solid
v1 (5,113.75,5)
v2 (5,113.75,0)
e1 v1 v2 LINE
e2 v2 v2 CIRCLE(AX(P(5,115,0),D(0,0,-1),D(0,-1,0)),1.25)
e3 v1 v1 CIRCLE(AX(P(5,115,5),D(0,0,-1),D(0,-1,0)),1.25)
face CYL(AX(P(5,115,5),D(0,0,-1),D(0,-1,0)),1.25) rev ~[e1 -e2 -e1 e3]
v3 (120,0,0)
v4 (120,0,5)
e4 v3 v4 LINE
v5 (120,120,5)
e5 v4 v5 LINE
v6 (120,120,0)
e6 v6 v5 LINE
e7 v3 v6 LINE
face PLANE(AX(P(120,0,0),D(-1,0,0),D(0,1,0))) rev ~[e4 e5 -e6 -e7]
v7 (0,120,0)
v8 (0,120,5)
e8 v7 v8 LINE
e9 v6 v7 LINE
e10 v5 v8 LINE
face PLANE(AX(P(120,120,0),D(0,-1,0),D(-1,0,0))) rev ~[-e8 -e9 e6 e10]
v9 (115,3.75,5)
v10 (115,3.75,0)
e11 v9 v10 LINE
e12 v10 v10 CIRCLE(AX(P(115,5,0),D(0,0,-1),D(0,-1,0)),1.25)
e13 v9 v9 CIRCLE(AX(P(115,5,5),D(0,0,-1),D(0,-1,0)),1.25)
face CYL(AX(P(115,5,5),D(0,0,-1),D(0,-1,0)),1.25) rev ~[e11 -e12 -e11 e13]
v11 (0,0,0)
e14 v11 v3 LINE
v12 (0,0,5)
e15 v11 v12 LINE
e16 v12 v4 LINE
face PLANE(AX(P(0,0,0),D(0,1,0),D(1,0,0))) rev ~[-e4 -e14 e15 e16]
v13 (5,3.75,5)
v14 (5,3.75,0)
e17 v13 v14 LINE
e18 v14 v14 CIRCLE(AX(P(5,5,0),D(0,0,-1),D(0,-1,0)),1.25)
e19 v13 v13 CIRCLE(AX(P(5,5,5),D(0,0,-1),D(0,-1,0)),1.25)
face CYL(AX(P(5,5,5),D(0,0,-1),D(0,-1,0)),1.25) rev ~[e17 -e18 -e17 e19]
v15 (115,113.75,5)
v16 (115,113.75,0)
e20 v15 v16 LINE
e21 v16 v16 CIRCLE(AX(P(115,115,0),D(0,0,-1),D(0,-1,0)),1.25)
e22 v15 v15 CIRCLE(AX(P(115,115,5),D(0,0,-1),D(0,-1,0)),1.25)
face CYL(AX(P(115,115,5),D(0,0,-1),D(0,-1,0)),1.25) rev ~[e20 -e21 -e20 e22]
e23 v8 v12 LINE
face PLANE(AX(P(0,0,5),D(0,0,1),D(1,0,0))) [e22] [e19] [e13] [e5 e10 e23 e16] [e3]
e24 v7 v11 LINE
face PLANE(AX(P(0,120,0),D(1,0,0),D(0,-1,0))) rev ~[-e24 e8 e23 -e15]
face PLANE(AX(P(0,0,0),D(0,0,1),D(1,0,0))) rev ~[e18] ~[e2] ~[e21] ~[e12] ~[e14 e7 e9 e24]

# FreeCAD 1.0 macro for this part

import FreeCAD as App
import Part
import Sketcher

V = App.Vector
Q = App.Units.Quantity

doc = App.newDocument("Part")
body = doc.addObject("PartDesign::Body", "Body")

# Sketch on XY plane
sketch1 = body.newObject("Sketcher::SketchObject", "Sketch")
sketch1.AttachmentSupport = (doc.getObject("XY_Plane"), [""])
sketch1.MapMode = "FlatFace"
sketch1.addGeometry([
    Part.LineSegment(V(0, 120, 0), V(0, 0, 0)),
    Part.LineSegment(V(0, 0, 0), V(120, 0, 0)),
    Part.LineSegment(V(120, 0, 0), V(120, 120, 0)),
    Part.LineSegment(V(120, 120, 0), V(0, 120, 0)),
], False)
sketch1.addConstraint([
    Sketcher.Constraint("Coincident", 0, 2, 1, 1),
    Sketcher.Constraint("Coincident", 1, 2, 2, 1),
    Sketcher.Constraint("Coincident", 2, 2, 3, 1),
    Sketcher.Constraint("Coincident", 3, 2, 0, 1),
    Sketcher.Constraint("Vertical", 0),
    Sketcher.Constraint("Horizontal", 1),
    Sketcher.Constraint("Vertical", 2),
    Sketcher.Constraint("Horizontal", 3),
    Sketcher.Constraint("Coincident", 0, 2, -1, 1),
    Sketcher.Constraint("Equal", 3, 0),
    Sketcher.Constraint("DistanceX", 1, 1, 1, 2, Q("120 mm")),
])
pad1 = body.newObject("PartDesign::Pad", "Pad")
pad1.Profile = sketch1
pad1.Length = 5

# Sketch on XY plane
sketch2 = body.newObject("Sketcher::SketchObject", "Sketch001")
sketch2.AttachmentSupport = (doc.getObject("XY_Plane"), [""])
sketch2.MapMode = "FlatFace"
sketch2.AttachmentOffset = App.Placement(V(0, 0, 5), App.Rotation())
sketch2.addGeometry(Part.Circle(V(5, 115, 0), V(0, 0, 1), 1.2), False)
sketch2.addConstraint([
    Sketcher.Constraint("Diameter", 0, Q("2.5 mm")),
    Sketcher.Constraint("DistanceX", -1, 1, 0, 3, Q("5 mm")),
    Sketcher.Constraint("DistanceY", -1, 1, 0, 3, Q("115 mm")),
])
doc.recompute()
hole = body.newObject("PartDesign::Hole", "Hole")
hole.Profile = sketch2
hole.ThreadType = "None"
hole.Diameter = 2.5
hole.DepthType = "Dimension"
hole.Depth = 38.1
hole.DrillPoint = "Angled"
hole.DrillPointAngle = 118

# Sketch on XY plane
sketch3 = body.newObject("Sketcher::SketchObject", "Sketch002")
sketch3.AttachmentSupport = (doc.getObject("XY_Plane"), [""])
sketch3.MapMode = "FlatFace"
sketch3.AttachmentOffset = App.Placement(V(0, 0, 5), App.Rotation())
sketch3.addGeometry(Part.Circle(V(5, 5, 0), V(0, 0, 1), 1.2), False)
sketch3.addConstraint([
    Sketcher.Constraint("Diameter", 0, Q("2.5 mm")),
    Sketcher.Constraint("DistanceX", -1, 1, 0, 3, Q("5 mm")),
    Sketcher.Constraint("DistanceY", -1, 1, 0, 3, Q("5 mm")),
])
doc.recompute()
hole2 = body.newObject("PartDesign::Hole", "Hole001")
hole2.Profile = sketch3
hole2.ThreadType = "None"
hole2.Diameter = 2.5
hole2.DepthType = "Dimension"
hole2.Depth = 38.1
hole2.DrillPoint = "Angled"
hole2.DrillPointAngle = 118

# Sketch on XY plane
sketch4 = body.newObject("Sketcher::SketchObject", "Sketch003")
sketch4.AttachmentSupport = (doc.getObject("XY_Plane"), [""])
sketch4.MapMode = "FlatFace"
sketch4.AttachmentOffset = App.Placement(V(0, 0, 5), App.Rotation())
sketch4.addGeometry(Part.Circle(V(115, 5, 0), V(0, 0, 1), 1.2), False)
sketch4.addConstraint([
    Sketcher.Constraint("Diameter", 0, Q("2.5 mm")),
    Sketcher.Constraint("DistanceX", -1, 1, 0, 3, Q("115 mm")),
    Sketcher.Constraint("DistanceY", -1, 1, 0, 3, Q("5 mm")),
])
doc.recompute()
hole3 = body.newObject("PartDesign::Hole", "Hole002")
hole3.Profile = sketch4
hole3.ThreadType = "None"
hole3.Diameter = 2.5
hole3.DepthType = "Dimension"
hole3.Depth = 38.1
hole3.DrillPoint = "Angled"
hole3.DrillPointAngle = 118

# Sketch on XY plane
sketch5 = body.newObject("Sketcher::SketchObject", "Sketch004")
sketch5.AttachmentSupport = (doc.getObject("XY_Plane"), [""])
sketch5.MapMode = "FlatFace"
sketch5.AttachmentOffset = App.Placement(V(0, 0, 5), App.Rotation())
sketch5.addGeometry(Part.Circle(V(115, 115, 0), V(0, 0, 1), 1.2), False)
sketch5.addConstraint([
    Sketcher.Constraint("Diameter", 0, Q("2.5 mm")),
    Sketcher.Constraint("DistanceX", -1, 1, 0, 3, Q("115 mm")),
    Sketcher.Constraint("DistanceY", -1, 1, 0, 3, Q("115 mm")),
])
doc.recompute()
hole4 = body.newObject("PartDesign::Hole", "Hole003")
hole4.Profile = sketch5
hole4.ThreadType = "None"
hole4.Diameter = 2.5
hole4.DepthType = "Dimension"
hole4.Depth = 38.1
hole4.DrillPoint = "Angled"
hole4.DrillPointAngle = 118

doc.recompute()
